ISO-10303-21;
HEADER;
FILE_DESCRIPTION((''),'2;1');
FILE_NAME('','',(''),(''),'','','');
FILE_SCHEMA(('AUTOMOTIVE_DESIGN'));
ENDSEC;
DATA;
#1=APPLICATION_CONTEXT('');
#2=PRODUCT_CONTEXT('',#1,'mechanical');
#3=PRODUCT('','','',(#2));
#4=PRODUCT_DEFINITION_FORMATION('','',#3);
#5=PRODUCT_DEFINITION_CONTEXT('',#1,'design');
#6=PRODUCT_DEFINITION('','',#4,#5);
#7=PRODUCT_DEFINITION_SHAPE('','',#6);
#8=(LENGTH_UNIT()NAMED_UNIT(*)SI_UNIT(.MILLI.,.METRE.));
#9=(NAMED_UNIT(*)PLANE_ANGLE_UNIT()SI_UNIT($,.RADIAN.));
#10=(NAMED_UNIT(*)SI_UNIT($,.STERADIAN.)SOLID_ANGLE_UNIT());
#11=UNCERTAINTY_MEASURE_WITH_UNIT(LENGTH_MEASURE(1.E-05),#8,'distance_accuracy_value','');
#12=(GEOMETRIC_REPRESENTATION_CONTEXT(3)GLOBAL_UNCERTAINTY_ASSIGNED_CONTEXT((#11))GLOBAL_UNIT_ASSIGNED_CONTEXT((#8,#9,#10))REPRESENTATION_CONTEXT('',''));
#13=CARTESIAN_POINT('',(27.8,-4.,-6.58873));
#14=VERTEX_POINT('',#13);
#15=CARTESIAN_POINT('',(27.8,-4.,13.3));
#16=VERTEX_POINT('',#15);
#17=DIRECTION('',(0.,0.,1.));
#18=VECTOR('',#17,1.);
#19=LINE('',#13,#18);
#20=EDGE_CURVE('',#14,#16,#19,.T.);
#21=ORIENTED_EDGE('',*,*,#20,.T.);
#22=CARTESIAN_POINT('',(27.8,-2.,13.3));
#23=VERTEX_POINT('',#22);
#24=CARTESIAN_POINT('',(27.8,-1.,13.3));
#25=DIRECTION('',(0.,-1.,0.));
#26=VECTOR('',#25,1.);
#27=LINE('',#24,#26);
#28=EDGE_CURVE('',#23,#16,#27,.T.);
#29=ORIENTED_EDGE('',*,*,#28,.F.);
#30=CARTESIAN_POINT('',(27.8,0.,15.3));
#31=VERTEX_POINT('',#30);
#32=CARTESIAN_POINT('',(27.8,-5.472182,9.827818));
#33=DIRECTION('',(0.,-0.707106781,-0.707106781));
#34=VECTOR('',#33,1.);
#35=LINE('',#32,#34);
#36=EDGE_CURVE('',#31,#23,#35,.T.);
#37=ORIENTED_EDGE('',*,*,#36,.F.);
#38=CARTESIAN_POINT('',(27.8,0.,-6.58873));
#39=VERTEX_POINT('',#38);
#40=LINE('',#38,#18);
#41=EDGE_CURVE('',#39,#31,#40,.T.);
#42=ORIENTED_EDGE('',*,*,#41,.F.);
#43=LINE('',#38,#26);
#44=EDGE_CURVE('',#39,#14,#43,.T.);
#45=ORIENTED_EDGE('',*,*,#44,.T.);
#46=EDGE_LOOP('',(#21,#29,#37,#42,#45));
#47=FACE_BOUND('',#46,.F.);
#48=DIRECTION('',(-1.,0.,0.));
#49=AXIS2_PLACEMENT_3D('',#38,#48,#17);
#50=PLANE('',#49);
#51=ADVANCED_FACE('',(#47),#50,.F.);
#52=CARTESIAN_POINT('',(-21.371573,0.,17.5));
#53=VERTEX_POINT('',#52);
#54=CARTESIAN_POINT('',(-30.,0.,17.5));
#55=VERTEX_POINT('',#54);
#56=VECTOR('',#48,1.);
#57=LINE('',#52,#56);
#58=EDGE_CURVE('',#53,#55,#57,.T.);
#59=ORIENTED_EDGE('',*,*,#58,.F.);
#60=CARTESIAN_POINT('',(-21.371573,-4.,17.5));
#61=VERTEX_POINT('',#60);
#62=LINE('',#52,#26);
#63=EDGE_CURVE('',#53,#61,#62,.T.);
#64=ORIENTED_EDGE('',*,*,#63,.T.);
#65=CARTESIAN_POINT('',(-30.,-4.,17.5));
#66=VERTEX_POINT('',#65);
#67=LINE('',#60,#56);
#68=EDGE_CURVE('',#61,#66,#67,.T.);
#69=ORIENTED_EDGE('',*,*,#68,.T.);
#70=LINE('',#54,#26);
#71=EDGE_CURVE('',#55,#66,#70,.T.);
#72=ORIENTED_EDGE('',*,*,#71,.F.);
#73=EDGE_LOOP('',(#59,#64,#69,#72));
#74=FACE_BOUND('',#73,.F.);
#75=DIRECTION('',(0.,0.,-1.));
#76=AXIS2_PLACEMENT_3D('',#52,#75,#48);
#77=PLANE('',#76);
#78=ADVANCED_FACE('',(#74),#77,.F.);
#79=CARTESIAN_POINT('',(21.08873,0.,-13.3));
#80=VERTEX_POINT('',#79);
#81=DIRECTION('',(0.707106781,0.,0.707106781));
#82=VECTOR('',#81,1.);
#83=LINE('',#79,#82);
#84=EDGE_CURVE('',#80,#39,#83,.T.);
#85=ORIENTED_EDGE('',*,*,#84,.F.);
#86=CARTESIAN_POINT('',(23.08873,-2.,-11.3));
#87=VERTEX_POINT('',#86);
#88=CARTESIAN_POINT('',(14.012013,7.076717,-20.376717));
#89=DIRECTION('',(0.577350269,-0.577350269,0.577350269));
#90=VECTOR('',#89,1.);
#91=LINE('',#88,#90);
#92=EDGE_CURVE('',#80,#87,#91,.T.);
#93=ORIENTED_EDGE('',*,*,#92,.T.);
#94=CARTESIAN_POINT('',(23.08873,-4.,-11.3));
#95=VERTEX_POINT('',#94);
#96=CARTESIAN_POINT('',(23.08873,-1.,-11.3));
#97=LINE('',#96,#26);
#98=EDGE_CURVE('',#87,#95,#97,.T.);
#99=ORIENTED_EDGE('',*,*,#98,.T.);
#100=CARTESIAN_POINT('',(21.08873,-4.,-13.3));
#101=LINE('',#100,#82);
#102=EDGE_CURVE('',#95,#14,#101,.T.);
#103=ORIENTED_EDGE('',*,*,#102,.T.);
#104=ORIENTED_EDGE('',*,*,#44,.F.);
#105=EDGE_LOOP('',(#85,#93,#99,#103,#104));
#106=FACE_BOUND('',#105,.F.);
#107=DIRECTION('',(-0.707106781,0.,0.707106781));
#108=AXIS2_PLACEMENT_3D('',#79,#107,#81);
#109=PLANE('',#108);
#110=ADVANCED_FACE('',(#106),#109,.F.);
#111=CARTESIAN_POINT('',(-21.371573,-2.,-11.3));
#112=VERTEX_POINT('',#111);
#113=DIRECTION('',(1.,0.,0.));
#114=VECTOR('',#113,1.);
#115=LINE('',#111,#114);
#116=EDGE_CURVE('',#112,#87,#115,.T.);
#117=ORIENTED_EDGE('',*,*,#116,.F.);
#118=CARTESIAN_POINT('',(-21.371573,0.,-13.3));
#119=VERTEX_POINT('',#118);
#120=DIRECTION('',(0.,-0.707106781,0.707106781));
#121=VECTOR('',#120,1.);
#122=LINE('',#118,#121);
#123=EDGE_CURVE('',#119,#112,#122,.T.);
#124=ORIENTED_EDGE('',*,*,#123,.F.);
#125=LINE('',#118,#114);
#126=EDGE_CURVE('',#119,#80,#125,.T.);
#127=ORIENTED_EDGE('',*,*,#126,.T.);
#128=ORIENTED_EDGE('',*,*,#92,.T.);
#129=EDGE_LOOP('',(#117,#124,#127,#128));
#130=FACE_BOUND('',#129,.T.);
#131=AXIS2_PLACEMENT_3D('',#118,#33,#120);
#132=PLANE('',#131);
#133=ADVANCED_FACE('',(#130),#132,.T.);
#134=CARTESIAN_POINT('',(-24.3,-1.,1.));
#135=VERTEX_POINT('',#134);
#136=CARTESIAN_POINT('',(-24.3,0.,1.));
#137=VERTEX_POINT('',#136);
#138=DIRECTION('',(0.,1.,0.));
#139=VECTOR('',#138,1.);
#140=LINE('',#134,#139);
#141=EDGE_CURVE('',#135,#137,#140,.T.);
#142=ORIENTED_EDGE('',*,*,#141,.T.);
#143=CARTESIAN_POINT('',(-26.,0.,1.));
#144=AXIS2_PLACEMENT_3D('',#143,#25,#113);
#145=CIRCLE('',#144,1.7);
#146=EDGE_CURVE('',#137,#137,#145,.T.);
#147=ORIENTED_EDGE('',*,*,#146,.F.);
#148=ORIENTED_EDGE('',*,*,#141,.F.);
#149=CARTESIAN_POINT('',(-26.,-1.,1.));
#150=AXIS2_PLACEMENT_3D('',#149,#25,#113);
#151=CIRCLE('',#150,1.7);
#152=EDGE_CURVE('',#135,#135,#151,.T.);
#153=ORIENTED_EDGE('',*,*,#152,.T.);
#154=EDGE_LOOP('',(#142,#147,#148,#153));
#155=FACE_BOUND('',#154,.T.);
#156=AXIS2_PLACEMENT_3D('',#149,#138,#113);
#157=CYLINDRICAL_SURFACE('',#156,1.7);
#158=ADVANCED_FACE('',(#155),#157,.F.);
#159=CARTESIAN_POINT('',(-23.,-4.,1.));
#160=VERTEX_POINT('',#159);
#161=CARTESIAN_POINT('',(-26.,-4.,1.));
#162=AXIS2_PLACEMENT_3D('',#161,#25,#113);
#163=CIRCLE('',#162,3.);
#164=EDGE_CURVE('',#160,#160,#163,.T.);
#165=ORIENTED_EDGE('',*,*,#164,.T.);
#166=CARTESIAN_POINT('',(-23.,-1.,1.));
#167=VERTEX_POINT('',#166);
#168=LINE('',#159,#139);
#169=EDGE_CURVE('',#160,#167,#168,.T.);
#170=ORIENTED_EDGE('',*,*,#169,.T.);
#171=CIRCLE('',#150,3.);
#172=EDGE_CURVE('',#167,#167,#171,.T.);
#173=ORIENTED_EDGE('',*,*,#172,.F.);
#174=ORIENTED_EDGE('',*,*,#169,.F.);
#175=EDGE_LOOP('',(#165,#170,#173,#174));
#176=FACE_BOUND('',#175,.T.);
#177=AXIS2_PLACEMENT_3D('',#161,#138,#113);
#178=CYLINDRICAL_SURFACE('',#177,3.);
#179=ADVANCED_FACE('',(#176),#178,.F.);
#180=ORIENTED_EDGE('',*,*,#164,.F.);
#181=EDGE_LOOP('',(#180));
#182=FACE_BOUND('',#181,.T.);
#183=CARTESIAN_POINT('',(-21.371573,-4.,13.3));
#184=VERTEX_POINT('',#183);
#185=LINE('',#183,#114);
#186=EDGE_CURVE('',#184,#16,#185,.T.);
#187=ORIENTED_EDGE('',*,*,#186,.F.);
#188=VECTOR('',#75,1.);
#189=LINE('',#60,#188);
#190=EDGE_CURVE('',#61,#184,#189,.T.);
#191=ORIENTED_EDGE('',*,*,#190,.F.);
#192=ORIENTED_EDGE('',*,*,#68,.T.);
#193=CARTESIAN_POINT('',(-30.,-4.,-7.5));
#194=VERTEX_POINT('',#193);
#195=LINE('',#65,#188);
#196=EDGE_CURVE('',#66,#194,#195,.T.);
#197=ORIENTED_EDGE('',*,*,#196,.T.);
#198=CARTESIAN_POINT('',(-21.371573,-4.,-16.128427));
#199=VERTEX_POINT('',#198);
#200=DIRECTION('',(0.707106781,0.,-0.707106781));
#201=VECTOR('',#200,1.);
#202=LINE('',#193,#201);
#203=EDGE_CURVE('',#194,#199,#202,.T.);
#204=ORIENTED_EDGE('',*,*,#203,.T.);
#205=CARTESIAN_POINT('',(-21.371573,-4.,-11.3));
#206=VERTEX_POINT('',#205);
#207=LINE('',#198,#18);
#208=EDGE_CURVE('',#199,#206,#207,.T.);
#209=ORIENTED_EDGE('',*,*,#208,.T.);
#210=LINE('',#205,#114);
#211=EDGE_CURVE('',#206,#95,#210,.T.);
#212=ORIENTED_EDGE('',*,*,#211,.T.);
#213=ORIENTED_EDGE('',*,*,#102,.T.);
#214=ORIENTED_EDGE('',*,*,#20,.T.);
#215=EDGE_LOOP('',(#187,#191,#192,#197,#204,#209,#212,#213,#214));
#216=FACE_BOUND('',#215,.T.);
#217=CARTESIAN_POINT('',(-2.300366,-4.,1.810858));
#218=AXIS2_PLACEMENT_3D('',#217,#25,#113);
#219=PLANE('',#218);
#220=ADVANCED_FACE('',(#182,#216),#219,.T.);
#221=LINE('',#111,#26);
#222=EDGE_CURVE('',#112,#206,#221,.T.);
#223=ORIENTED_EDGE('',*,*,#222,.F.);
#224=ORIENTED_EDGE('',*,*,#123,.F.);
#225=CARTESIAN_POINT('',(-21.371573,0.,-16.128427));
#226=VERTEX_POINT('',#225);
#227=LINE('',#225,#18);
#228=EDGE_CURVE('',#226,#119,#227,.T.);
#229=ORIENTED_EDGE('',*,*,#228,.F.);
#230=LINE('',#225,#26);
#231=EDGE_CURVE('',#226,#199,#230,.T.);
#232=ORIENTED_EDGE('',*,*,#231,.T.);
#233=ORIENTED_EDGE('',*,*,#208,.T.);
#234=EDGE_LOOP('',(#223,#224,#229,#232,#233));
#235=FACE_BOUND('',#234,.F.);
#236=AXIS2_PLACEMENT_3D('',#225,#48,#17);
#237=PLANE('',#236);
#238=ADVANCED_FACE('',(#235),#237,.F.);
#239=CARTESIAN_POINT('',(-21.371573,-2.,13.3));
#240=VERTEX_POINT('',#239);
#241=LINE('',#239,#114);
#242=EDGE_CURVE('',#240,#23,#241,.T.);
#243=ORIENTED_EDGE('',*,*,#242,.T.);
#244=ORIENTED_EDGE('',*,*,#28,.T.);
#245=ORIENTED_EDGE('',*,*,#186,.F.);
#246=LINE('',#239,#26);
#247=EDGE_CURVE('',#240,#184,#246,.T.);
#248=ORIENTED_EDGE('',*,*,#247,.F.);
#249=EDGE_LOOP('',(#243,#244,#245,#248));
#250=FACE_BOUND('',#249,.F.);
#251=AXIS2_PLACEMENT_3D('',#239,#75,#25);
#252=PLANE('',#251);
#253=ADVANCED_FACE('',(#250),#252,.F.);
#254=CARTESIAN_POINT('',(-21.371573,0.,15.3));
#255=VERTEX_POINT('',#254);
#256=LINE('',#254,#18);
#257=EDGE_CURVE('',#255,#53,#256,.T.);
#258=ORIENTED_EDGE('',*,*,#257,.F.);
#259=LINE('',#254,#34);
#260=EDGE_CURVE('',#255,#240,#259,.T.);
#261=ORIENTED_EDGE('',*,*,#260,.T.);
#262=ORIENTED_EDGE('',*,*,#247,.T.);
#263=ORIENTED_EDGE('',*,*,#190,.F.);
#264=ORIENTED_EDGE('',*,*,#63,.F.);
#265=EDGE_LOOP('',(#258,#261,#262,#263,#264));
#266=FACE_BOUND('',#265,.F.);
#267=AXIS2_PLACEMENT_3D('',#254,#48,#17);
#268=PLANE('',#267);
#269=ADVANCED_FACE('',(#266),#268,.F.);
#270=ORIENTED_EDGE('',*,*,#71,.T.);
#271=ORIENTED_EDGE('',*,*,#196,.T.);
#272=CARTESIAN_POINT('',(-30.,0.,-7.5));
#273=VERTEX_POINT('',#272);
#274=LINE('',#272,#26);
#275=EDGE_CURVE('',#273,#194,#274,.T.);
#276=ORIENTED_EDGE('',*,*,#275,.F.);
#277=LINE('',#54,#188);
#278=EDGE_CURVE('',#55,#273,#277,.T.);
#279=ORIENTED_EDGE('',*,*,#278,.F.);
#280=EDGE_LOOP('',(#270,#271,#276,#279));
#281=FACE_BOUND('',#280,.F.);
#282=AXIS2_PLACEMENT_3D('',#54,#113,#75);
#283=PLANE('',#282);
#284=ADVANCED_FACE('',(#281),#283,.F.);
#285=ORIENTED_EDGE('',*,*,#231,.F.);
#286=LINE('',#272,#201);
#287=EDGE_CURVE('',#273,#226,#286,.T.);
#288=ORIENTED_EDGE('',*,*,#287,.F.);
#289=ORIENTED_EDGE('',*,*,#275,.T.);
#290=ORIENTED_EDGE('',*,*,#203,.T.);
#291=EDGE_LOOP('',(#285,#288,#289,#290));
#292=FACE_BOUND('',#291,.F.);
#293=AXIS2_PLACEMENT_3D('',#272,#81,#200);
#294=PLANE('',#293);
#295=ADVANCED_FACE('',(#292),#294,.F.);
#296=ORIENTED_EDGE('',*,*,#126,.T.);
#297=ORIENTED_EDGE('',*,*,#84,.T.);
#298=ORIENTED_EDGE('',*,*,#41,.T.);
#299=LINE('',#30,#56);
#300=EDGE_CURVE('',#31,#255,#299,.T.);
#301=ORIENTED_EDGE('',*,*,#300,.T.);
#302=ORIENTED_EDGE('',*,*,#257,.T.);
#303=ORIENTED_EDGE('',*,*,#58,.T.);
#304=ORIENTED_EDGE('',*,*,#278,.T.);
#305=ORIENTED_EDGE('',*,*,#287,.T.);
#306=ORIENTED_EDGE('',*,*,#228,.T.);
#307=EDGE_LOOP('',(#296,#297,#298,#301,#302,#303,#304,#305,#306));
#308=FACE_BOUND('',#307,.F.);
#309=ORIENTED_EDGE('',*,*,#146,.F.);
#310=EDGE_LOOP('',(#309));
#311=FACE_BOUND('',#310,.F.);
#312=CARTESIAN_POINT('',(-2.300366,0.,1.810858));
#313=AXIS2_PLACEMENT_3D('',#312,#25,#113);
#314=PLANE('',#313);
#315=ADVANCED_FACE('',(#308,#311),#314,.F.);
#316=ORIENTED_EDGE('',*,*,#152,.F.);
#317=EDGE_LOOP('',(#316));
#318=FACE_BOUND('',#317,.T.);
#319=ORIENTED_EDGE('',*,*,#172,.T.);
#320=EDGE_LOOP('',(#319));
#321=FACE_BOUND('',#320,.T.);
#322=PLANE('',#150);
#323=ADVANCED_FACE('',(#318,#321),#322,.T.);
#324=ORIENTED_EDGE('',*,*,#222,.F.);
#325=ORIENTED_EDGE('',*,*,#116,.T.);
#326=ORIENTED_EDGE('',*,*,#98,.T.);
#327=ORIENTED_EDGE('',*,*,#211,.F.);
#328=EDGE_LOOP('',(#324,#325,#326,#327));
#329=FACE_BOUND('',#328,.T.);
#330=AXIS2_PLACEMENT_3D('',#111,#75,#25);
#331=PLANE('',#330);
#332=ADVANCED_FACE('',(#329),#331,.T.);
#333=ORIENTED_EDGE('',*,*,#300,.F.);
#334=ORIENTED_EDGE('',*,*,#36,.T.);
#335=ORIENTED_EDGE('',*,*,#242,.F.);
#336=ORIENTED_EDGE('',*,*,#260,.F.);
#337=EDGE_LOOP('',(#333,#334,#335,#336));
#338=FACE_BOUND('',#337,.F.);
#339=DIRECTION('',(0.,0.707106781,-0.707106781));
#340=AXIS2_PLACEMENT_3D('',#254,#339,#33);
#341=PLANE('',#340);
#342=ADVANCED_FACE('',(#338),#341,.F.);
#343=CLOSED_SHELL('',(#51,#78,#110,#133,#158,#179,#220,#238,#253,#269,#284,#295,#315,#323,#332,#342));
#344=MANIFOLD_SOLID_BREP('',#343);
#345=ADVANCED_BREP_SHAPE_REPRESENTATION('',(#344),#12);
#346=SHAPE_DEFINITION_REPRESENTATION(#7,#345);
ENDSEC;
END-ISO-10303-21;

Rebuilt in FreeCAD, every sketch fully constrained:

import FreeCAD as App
import Part
import Sketcher

V = App.Vector
Q = App.Units.Quantity


def add_polygon(sketch, points):
    """Adds a closed chain of lines whose ends are joined by coincident constraints."""
    first, n = sketch.GeometryCount, len(points)
    for a, b in zip(points, points[1:] + points[:1]):
        sketch.addGeometry(Part.LineSegment(App.Vector(*a, 0), App.Vector(*b, 0)), False)
    for i in range(n):
        sketch.addConstraint(Sketcher.Constraint("Coincident", first + i, 2, first + (i + 1) % n, 1))

doc = App.newDocument("Part")
body = doc.addObject("PartDesign::Body", "Body")

# Sketch on XZ plane
sketch1 = body.newObject("Sketcher::SketchObject", "Sketch")
sketch1.AttachmentSupport = (doc.getObject("XZ_Plane"), [""])
sketch1.MapMode = "FlatFace"
add_polygon(sketch1, [(-21.4, 17.5), (-30, 17.5), (-30, -7.5), (-21.4, -16.1), (-21.4, -13.3), (21.1, -13.3), (27.8, -6.6), (27.8, 15.3), (-21.4, 15.3)])  # lines 0-8
sketch1.addConstraint(Sketcher.Constraint("Horizontal", 0))
sketch1.addConstraint(Sketcher.Constraint("Vertical", 1))
sketch1.addConstraint(Sketcher.Constraint("Vertical", 3))
sketch1.addConstraint(Sketcher.Constraint("Horizontal", 4))
sketch1.addConstraint(Sketcher.Constraint("Vertical", 6))
sketch1.addConstraint(Sketcher.Constraint("Horizontal", 7))
sketch1.addConstraint(Sketcher.Constraint("Vertical", 8))
sketch1.addConstraint(Sketcher.Constraint("Perpendicular", 2, 5))
sketch1.addConstraint(Sketcher.Constraint("Vertical", 3, 2, 7, 2))
sketch1.addConstraint(Sketcher.Constraint("DistanceY", 1, 2, 1, 1, 25.0))
sketch1.addConstraint(Sketcher.Constraint("Angle", 2, Q("-45 deg")))
sketch1.addConstraint(Sketcher.Constraint("DistanceY", 8, 1, 8, 2, 2.2))
sketch1.addConstraint(Sketcher.Constraint("DistanceX", 0, 2, -1, 1, 30.0))
sketch1.addConstraint(Sketcher.Constraint("DistanceY", -1, 1, 0, 2, 17.5))
sketch1.addConstraint(Sketcher.Constraint("DistanceY", 3, 2, -1, 1, 13.3))
sketch1.addConstraint(Sketcher.Constraint("DistanceX", -1, 1, 5, 2, 27.8))
sketch1.addConstraint(Sketcher.Constraint("DistanceY", 6, 1, 6, 2, 21.88873))
sketch1.addConstraint(Sketcher.Constraint("Distance", 2, 12.202438))
pad1 = body.newObject("PartDesign::Pad", "Pad")
pad1.Profile = sketch1
pad1.Length = 4

# Sketch on YZ plane
sketch2 = body.newObject("Sketcher::SketchObject", "Sketch001")
sketch2.AttachmentSupport = (doc.getObject("YZ_Plane"), [""])
sketch2.MapMode = "FlatFace"
sketch2.AttachmentOffset = App.Placement(V(0, 0, -21.371573), App.Rotation())
add_polygon(sketch2, [(-2, -11.3), (0, -13.3), (-4, -13.3), (-4, -11.3)])  # lines 0-3
sketch2.addConstraint(Sketcher.Constraint("Horizontal", 1))
sketch2.addConstraint(Sketcher.Constraint("Vertical", 2))
sketch2.addConstraint(Sketcher.Constraint("Horizontal", 3))
sketch2.addConstraint(Sketcher.Constraint("PointOnObject", 0, 2, -2))
sketch2.addConstraint(Sketcher.Constraint("Equal", 3, 2))
sketch2.addConstraint(Sketcher.Constraint("DistanceX", 1, 2, 1, 1, 4.0))
sketch2.addConstraint(Sketcher.Constraint("DistanceX", 3, 1, 3, 2, 2.0))
sketch2.addConstraint(Sketcher.Constraint("DistanceY", 0, 2, -1, 1, 13.3))
pocket1 = body.newObject("PartDesign::Pocket", "Pocket")
pocket1.Profile = sketch2
pocket1.Type = "ThroughAll"
pocket1.Reversed = True

# Sketch on YZ plane
sketch3 = body.newObject("Sketcher::SketchObject", "Sketch002")
sketch3.AttachmentSupport = (doc.getObject("YZ_Plane"), [""])
sketch3.MapMode = "FlatFace"
sketch3.AttachmentOffset = App.Placement(V(0, 0, -21.371573), App.Rotation())
add_polygon(sketch3, [(-4, 15.3), (0, 15.3), (-2, 13.3), (-4, 13.3)])  # lines 0-3
sketch3.addConstraint(Sketcher.Constraint("Horizontal", 0))
sketch3.addConstraint(Sketcher.Constraint("Horizontal", 2))
sketch3.addConstraint(Sketcher.Constraint("Vertical", 3))
sketch3.addConstraint(Sketcher.Constraint("PointOnObject", 0, 2, -2))
sketch3.addConstraint(Sketcher.Constraint("Equal", 2, 3))
sketch3.addConstraint(Sketcher.Constraint("DistanceX", 0, 1, 0, 2, 4.0))
sketch3.addConstraint(Sketcher.Constraint("DistanceX", 2, 2, 2, 1, 2.0))
sketch3.addConstraint(Sketcher.Constraint("DistanceY", -1, 1, 0, 2, 15.3))
pocket2 = body.newObject("PartDesign::Pocket", "Pocket001")
pocket2.Profile = sketch3
pocket2.Type = "ThroughAll"
pocket2.Reversed = True

# Sketch on XY plane
sketch4 = body.newObject("Sketcher::SketchObject", "Sketch003")
sketch4.AttachmentSupport = (doc.getObject("XY_Plane"), [""])
sketch4.MapMode = "FlatFace"
sketch4.AttachmentOffset = App.Placement(V(0, 0, 1), App.Rotation())
add_polygon(sketch4, [(-26, -4), (-26, 0), (-24.3, 0), (-24.3, -1), (-23, -1), (-23, -4)])  # lines 0-5
sketch4.addGeometry(Part.LineSegment(V(-26, 0, 0), V(-26, -4, 0)), True)  # axis
sketch4.addConstraint(Sketcher.Constraint("Vertical", 0))
sketch4.addConstraint(Sketcher.Constraint("Horizontal", 1))
sketch4.addConstraint(Sketcher.Constraint("Vertical", 2))
sketch4.addConstraint(Sketcher.Constraint("Horizontal", 3))
sketch4.addConstraint(Sketcher.Constraint("Vertical", 4))
sketch4.addConstraint(Sketcher.Constraint("Horizontal", 5))
sketch4.addConstraint(Sketcher.Constraint("Vertical", 6))
sketch4.addConstraint(Sketcher.Constraint("Coincident", 6, 1, 0, 2))
sketch4.addConstraint(Sketcher.Constraint("PointOnObject", 0, 2, -1))
sketch4.addConstraint(Sketcher.Constraint("Horizontal", 4, 2, 6, 2))
sketch4.addConstraint(Sketcher.Constraint("Equal", 5, 4))
sketch4.addConstraint(Sketcher.Constraint("DistanceX", 5, 2, 5, 1, 3.0))
sketch4.addConstraint(Sketcher.Constraint("DistanceY", 0, 1, 0, 2, 4.0))
sketch4.addConstraint(Sketcher.Constraint("DistanceX", 1, 1, 1, 2, 1.7))
sketch4.addConstraint(Sketcher.Constraint("DistanceX", 0, 2, -1, 1, 26.0))
groove = body.newObject("PartDesign::Groove", "Groove")
groove.Profile = sketch4
groove.ReferenceAxis = (sketch4, ["Axis0"])
groove.Angle = 360

doc.recompute()
